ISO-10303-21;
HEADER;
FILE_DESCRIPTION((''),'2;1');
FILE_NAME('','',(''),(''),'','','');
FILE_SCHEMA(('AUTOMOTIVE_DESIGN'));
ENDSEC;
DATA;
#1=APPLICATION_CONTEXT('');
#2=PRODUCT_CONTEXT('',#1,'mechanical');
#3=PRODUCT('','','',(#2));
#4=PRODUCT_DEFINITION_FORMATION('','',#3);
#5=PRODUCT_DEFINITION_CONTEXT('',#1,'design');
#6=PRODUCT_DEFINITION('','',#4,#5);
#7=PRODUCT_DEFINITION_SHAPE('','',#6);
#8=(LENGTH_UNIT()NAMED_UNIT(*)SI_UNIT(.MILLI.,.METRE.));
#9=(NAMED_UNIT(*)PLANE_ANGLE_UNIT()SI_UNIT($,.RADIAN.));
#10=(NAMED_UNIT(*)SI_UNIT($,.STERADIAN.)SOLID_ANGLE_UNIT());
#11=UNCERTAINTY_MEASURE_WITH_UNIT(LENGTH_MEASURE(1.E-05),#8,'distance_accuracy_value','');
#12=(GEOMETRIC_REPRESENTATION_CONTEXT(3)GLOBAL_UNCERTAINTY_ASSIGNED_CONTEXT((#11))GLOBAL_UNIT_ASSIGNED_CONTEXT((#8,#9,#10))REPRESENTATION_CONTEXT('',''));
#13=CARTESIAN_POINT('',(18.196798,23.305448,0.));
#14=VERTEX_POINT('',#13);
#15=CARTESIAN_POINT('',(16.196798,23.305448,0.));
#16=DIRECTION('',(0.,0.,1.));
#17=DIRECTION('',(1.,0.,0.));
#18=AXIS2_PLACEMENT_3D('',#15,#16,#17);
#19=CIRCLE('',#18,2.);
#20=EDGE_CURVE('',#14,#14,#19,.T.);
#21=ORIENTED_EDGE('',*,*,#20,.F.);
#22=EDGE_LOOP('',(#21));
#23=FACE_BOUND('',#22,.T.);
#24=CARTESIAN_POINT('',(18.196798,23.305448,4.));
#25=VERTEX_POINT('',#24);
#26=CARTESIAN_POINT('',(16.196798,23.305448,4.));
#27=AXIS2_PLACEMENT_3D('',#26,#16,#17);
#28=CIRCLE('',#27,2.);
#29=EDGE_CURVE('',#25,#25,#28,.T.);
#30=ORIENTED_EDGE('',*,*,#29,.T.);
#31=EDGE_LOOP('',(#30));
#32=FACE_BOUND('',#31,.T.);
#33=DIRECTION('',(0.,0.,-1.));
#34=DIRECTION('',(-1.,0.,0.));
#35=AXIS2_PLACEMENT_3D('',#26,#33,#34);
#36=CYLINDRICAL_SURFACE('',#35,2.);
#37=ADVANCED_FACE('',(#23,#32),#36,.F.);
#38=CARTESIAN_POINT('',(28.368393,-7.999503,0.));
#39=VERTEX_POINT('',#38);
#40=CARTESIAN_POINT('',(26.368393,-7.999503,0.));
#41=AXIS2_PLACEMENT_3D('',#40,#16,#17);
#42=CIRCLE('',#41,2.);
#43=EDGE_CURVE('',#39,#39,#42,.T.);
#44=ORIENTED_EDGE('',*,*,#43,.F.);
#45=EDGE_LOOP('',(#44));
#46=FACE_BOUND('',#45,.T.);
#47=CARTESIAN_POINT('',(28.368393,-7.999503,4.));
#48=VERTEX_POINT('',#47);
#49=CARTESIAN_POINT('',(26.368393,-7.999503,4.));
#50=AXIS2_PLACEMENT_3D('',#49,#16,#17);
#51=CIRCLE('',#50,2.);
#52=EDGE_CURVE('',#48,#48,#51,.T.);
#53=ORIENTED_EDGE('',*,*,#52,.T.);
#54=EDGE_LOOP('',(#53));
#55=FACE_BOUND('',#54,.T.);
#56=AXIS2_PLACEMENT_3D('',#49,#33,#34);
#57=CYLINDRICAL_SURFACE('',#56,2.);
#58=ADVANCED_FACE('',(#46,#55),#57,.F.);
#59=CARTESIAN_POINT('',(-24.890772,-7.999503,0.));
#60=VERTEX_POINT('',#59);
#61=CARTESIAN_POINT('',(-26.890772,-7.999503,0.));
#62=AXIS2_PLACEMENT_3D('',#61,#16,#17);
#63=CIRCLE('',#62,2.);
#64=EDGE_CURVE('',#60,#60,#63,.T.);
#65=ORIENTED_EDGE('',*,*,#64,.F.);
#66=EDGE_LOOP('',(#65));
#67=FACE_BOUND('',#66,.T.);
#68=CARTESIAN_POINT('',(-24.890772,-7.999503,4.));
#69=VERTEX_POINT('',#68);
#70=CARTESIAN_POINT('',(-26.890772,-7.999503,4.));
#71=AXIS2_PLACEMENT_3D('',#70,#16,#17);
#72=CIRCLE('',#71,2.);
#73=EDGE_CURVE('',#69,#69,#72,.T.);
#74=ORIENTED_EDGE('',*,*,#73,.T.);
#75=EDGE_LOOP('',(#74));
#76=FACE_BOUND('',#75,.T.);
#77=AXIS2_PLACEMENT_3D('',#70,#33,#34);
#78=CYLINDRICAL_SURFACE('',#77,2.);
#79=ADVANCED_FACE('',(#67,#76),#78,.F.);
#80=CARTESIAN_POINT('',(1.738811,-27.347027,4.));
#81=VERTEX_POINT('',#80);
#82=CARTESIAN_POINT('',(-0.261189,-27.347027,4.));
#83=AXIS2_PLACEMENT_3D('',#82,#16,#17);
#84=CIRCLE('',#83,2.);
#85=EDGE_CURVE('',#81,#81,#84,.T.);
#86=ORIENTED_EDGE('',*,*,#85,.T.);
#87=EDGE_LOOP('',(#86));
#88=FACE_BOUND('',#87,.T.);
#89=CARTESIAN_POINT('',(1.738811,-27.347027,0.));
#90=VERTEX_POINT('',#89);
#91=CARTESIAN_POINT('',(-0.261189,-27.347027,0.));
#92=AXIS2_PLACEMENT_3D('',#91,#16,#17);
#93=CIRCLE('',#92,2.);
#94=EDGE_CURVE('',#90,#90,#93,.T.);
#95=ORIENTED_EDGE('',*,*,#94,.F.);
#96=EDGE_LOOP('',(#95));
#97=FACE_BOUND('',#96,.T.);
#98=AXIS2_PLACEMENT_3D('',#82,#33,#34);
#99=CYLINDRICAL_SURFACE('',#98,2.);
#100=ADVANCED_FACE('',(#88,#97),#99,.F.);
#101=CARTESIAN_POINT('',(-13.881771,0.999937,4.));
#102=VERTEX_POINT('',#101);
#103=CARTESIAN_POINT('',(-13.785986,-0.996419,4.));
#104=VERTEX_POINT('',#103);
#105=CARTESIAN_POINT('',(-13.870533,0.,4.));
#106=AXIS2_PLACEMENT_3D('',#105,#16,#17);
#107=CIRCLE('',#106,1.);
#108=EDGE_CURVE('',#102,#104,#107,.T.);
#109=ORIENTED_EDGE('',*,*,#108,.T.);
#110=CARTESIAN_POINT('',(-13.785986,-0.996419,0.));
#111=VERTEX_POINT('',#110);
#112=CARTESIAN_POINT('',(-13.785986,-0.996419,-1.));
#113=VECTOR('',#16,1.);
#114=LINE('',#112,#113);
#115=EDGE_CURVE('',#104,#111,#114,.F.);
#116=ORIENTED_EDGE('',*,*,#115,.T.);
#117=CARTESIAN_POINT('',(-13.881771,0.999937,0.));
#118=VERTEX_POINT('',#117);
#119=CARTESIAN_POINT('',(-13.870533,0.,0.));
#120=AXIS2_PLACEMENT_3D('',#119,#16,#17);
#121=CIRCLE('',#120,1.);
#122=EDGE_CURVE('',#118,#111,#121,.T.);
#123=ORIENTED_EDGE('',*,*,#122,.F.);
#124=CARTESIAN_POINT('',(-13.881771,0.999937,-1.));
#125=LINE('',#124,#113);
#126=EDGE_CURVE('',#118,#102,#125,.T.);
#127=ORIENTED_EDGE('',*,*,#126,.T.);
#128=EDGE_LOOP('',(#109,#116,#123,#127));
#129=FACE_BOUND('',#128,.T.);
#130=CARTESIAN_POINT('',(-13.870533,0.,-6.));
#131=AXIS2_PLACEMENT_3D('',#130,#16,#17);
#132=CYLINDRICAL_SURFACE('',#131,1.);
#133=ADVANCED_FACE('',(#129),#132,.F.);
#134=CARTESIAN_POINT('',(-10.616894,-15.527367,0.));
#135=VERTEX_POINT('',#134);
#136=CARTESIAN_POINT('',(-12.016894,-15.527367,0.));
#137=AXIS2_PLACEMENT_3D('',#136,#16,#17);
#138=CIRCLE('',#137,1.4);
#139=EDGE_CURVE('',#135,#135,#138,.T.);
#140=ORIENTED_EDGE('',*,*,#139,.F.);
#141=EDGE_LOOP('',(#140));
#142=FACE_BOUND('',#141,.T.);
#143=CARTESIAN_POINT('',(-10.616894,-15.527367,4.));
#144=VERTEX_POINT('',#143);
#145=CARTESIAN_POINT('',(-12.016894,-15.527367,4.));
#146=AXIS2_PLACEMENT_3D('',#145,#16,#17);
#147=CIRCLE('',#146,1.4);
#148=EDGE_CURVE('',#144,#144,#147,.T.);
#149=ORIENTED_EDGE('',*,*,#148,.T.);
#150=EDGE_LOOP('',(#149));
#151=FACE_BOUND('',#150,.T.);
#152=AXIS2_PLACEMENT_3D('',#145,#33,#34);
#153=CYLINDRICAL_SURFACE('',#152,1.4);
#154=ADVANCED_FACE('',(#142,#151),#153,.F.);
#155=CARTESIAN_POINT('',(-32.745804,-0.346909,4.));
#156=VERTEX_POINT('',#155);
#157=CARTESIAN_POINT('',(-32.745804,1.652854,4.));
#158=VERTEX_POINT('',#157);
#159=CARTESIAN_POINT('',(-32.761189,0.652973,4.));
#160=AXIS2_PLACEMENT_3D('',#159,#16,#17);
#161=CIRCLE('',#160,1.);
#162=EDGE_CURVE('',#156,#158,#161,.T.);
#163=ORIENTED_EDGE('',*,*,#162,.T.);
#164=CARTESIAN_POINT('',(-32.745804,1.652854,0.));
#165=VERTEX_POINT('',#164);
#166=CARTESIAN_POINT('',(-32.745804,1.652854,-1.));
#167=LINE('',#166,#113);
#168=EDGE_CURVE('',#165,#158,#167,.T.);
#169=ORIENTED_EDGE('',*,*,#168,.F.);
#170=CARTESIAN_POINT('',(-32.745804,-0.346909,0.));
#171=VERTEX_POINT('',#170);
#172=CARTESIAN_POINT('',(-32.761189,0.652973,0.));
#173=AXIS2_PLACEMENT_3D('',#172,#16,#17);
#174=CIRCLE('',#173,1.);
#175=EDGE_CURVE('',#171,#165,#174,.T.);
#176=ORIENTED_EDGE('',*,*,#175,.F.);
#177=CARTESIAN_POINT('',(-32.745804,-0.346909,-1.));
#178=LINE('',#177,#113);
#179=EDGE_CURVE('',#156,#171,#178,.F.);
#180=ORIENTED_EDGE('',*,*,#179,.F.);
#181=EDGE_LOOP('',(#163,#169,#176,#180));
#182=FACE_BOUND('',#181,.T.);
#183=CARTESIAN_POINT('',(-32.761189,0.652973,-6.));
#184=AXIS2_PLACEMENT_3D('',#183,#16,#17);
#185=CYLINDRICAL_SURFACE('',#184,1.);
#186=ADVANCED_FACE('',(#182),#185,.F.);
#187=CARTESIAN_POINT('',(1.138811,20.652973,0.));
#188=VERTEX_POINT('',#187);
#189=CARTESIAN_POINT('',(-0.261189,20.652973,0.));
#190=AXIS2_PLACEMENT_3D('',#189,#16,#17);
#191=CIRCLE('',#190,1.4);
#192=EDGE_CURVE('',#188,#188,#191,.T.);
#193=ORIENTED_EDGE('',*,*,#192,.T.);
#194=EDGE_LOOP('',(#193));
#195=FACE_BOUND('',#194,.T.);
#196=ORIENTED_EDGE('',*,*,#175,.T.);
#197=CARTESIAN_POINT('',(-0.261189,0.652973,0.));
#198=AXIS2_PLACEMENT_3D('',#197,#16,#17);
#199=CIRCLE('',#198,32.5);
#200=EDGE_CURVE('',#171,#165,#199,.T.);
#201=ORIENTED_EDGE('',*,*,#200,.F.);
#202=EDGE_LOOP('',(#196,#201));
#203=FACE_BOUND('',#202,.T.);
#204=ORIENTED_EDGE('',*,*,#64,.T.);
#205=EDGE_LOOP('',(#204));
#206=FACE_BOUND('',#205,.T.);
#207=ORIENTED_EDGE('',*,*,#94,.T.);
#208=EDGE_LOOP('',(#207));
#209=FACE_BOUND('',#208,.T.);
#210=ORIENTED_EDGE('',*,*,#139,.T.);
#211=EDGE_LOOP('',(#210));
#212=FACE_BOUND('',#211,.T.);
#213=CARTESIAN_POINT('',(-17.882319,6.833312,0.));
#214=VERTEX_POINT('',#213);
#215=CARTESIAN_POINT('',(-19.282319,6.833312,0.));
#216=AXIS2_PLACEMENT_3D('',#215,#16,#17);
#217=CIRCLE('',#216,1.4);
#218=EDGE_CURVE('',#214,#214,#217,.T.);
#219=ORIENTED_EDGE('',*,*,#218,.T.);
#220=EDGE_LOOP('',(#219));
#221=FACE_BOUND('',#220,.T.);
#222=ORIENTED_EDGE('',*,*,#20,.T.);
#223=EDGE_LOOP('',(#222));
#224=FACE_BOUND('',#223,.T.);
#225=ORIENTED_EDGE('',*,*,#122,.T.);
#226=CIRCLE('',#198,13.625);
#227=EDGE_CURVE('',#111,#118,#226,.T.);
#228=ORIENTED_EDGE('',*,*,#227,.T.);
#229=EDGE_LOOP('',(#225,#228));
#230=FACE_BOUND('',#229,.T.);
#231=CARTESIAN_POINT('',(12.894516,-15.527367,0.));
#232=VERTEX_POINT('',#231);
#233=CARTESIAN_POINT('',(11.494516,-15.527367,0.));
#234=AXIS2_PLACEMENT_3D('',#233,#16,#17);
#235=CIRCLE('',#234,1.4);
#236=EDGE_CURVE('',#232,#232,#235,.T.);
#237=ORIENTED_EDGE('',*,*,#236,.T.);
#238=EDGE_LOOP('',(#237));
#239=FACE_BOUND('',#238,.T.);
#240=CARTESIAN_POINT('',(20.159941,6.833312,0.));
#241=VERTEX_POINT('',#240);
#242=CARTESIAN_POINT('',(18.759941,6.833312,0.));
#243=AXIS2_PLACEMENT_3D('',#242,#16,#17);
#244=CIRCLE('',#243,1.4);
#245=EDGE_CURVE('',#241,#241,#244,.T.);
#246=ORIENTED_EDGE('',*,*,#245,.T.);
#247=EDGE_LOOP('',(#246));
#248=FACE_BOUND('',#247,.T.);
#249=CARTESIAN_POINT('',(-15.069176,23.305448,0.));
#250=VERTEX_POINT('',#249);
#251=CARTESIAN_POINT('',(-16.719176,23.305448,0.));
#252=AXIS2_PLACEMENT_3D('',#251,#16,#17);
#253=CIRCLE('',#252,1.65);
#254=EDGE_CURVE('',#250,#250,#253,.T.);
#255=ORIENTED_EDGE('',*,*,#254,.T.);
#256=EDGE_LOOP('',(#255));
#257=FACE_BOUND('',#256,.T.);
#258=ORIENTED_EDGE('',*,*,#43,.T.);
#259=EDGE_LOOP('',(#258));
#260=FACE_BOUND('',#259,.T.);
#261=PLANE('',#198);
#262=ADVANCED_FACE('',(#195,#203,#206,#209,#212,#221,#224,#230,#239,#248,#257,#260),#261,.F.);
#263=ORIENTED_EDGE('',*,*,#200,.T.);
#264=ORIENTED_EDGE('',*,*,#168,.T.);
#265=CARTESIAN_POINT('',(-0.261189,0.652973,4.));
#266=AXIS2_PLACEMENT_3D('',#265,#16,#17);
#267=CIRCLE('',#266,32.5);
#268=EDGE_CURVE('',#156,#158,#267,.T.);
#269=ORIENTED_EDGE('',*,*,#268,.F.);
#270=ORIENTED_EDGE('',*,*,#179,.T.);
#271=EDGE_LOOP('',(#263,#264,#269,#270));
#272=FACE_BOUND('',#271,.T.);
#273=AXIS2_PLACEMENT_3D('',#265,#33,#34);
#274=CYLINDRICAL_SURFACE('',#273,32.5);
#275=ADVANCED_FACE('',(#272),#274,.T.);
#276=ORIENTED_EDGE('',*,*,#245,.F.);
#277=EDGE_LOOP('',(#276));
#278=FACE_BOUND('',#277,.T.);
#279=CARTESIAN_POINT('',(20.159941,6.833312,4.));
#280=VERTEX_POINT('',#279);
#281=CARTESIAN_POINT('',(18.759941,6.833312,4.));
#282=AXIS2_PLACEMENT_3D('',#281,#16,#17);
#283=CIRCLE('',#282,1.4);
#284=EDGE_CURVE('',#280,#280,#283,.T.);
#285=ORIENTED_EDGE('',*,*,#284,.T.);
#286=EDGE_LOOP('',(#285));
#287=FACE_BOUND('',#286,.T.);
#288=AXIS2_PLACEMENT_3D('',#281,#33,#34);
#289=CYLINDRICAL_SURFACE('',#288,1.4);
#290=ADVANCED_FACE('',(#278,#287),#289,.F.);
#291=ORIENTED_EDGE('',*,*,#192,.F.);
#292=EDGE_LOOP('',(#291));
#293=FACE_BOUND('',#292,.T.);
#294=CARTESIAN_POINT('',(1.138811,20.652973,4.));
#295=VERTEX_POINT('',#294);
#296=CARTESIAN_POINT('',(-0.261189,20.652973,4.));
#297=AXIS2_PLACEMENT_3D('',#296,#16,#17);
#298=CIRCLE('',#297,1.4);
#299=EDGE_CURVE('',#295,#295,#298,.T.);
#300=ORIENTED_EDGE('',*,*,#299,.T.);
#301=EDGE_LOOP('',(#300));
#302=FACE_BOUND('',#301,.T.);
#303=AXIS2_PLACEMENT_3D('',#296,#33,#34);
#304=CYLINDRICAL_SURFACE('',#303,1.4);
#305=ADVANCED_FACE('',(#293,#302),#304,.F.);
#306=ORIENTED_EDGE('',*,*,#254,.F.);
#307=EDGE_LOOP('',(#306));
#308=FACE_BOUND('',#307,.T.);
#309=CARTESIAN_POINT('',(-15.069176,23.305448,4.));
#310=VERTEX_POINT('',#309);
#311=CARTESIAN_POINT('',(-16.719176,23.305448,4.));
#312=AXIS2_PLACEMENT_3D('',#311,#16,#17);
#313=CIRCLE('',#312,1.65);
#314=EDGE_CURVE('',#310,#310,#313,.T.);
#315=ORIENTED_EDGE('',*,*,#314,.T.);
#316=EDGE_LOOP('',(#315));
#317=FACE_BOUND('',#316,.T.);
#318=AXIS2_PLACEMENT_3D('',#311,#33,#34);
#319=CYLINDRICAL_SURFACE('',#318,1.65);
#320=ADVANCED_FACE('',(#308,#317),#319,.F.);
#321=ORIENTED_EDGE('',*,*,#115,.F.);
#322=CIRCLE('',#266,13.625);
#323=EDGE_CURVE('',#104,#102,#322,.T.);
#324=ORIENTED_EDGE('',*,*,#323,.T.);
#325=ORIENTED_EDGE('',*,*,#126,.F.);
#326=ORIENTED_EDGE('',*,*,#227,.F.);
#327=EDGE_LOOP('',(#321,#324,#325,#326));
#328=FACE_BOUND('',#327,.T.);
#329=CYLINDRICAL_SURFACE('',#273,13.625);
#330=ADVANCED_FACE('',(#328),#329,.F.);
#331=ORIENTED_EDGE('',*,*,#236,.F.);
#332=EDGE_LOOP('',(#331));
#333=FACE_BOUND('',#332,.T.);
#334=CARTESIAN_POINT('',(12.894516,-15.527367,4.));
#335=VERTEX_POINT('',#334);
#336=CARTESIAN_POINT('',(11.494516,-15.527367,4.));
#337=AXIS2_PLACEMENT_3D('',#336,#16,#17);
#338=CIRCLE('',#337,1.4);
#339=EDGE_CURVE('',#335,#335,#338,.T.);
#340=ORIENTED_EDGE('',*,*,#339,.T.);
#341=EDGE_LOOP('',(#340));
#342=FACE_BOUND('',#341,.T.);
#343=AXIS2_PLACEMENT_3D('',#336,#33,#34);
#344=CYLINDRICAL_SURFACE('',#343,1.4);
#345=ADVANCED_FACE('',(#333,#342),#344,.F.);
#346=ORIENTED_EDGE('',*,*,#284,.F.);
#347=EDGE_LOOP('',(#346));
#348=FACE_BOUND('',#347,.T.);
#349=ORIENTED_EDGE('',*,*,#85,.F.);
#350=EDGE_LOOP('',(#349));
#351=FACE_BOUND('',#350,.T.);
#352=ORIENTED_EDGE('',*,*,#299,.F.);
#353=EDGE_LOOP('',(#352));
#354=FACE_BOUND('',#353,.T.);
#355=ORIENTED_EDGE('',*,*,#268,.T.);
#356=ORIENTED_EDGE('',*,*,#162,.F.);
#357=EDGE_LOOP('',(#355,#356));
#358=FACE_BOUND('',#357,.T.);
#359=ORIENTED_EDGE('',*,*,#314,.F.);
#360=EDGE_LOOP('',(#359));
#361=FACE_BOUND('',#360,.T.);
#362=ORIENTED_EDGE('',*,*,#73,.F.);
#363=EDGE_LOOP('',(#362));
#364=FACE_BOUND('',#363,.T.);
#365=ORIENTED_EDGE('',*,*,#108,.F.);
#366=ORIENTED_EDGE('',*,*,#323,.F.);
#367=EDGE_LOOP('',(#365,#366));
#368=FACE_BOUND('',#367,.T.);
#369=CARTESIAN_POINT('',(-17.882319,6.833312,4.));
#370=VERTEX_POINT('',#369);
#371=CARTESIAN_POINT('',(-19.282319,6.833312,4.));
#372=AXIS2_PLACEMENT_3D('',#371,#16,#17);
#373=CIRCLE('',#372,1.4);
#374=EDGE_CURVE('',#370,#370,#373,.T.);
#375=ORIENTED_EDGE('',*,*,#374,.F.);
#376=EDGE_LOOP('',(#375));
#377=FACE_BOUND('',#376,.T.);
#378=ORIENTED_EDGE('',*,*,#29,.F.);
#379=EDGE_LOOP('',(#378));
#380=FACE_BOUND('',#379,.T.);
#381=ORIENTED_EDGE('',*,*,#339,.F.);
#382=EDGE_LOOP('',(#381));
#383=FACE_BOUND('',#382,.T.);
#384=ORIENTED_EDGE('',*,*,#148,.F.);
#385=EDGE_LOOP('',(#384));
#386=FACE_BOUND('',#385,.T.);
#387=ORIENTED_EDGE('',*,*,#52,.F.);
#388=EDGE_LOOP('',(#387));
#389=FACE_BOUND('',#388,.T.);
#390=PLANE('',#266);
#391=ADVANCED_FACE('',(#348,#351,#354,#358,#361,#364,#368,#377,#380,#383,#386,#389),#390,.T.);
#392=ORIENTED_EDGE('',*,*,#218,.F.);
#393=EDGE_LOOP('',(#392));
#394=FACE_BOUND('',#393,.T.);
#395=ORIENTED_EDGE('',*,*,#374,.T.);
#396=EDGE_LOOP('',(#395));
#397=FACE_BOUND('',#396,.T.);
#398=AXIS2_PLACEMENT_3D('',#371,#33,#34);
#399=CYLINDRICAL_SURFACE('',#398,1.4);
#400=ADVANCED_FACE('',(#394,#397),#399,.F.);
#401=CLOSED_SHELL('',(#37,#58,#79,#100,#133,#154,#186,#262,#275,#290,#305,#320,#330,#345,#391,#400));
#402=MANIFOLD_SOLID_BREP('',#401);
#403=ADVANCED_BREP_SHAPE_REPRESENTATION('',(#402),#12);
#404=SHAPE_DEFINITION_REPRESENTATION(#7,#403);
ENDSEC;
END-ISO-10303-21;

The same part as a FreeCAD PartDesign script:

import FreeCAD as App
import Part
import Sketcher
from FreeCAD import Vector
Q = App.Units.Quantity

doc = App.newDocument("Part")
body = doc.addObject("PartDesign::Body", "Body")

# Sketch on XY plane
sketch1 = doc.addObject("Sketcher::SketchObject", "Sketch")
body.addObject(sketch1)
sketch1.AttachmentSupport = (doc.XY_Plane, [""])
sketch1.MapMode = "FlatFace"
sketch1.addGeometry([
    Part.Circle(Vector(-0.3, 0.7, 0), Vector(0, 0, 1), 32.5),  # 0
    Part.Circle(Vector(-0.3, -27.3, 0), Vector(0, 0, 1), 2),  # 1
    Part.Circle(Vector(-26.9, -8, 0), Vector(0, 0, 1), 2),  # 2
    Part.Circle(Vector(-12, -15.5, 0), Vector(0, 0, 1), 1.4),  # 3
    Part.Circle(Vector(11.5, -15.5, 0), Vector(0, 0, 1), 1.4),  # 4
    Part.Circle(Vector(26.4, -8, 0), Vector(0, 0, 1), 2),  # 5
    Part.Circle(Vector(-19.3, 6.8, 0), Vector(0, 0, 1), 1.4),  # 6
    Part.Circle(Vector(-0.3, 0.7, 0), Vector(0, 0, 1), 13.6),  # 7
    Part.Circle(Vector(-16.7, 23.3, 0), Vector(0, 0, 1), 1.6),  # 8
    Part.Circle(Vector(-0.3, 20.7, 0), Vector(0, 0, 1), 1.4),  # 9
    Part.Circle(Vector(18.8, 6.8, 0), Vector(0, 0, 1), 1.4),  # 10
    Part.Circle(Vector(16.2, 23.3, 0), Vector(0, 0, 1), 2),  # 11
], False)
sketch1.addConstraint([
    Sketcher.Constraint("Coincident", 7, 3, 0, 3),
    Sketcher.Constraint("Equal", 1, 2),
    Sketcher.Constraint("Equal", 3, 4),
    Sketcher.Constraint("Equal", 2, 5),
    Sketcher.Constraint("Equal", 4, 6),
    Sketcher.Constraint("Equal", 6, 9),
    Sketcher.Constraint("Equal", 9, 10),
    Sketcher.Constraint("Equal", 5, 11),
    Sketcher.Constraint("Horizontal", 3, 3, 4, 3),
    Sketcher.Constraint("Horizontal", 2, 3, 5, 3),
    Sketcher.Constraint("Horizontal", 6, 3, 10, 3),
    Sketcher.Constraint("Horizontal", 8, 3, 11, 3),
    Sketcher.Constraint("Vertical", 0, 3, 1, 3),
    Sketcher.Constraint("Vertical", 7, 3, 9, 3),
    Sketcher.Constraint("Diameter", 0, Q("65 mm")),
    Sketcher.Constraint("Diameter", 1, Q("4 mm")),
    Sketcher.Constraint("Diameter", 3, Q("2.8 mm")),
    Sketcher.Constraint("Diameter", 8, Q("3.3 mm")),
    Sketcher.Constraint("Diameter", 7, Q("27.25 mm")),
    Sketcher.Constraint("DistanceY", 1, 3, 0, 3, Q("28 mm")),
    Sketcher.Constraint("DistanceY", 0, 3, 9, 3, Q("20 mm")),
    Sketcher.Constraint("DistanceX", -1, 1, 11, 3, Q("16.196798 mm")),
    Sketcher.Constraint("DistanceX", 0, 3, -1, 1, Q("0.261189 mm")),
    Sketcher.Constraint("DistanceX", 2, 3, -1, 1, Q("26.890772 mm")),
    Sketcher.Constraint("DistanceX", 6, 3, -1, 1, Q("19.282319 mm")),
    Sketcher.Constraint("DistanceY", -1, 1, 8, 3, Q("23.305448 mm")),
    Sketcher.Constraint("DistanceX", -1, 1, 10, 3, Q("18.759941 mm")),
    Sketcher.Constraint("DistanceY", 1, 3, 3, 3, Q("11.81966 mm")),
    Sketcher.Constraint("DistanceX", 3, 3, 4, 3, Q("23.51141 mm")),
    Sketcher.Constraint("DistanceY", 0, 3, 6, 3, Q("6.18034 mm")),
    Sketcher.Constraint("DistanceY", 2, 3, 8, 3, Q("31.304952 mm")),
    Sketcher.Constraint("DistanceY", -1, 1, 0, 3, Q("0.652973 mm")),
    Sketcher.Constraint("DistanceX", 3, 3, -1, 1, Q("12.016894 mm")),
    Sketcher.Constraint("DistanceX", -1, 1, 5, 3, Q("26.368393 mm")),
    Sketcher.Constraint("DistanceX", 8, 3, -1, 1, Q("16.719176 mm")),
])
pad1 = doc.addObject("PartDesign::Pad", "Pad")
body.addObject(pad1)
pad1.Profile = sketch1
pad1.Length = 4

# Sketch on XY plane
sketch2 = doc.addObject("Sketcher::SketchObject", "Sketch001")
body.addObject(sketch2)
sketch2.AttachmentSupport = (doc.XY_Plane, [""])
sketch2.MapMode = "FlatFace"
sketch2.AttachmentOffset = App.Placement(Vector(0, 0, 4), App.Rotation())
sketch2.addGeometry([
    Part.Circle(Vector(-13.9, 0, 0), Vector(0, 0, 1), 1),
    Part.Circle(Vector(-32.8, 0.7, 0), Vector(0, 0, 1), 1),
], False)
sketch2.addConstraint([
    Sketcher.Constraint("Equal", 0, 1),
    Sketcher.Constraint("PointOnObject", 0, 3, -1),
    Sketcher.Constraint("Diameter", 0, Q("2 mm")),
    Sketcher.Constraint("DistanceX", 1, 3, -1, 1, Q("32.761189 mm")),
    Sketcher.Constraint("DistanceX", 0, 3, -1, 1, Q("13.870533 mm")),
    Sketcher.Constraint("DistanceY", -1, 1, 1, 3, Q("0.652973 mm")),
])
pocket1 = doc.addObject("PartDesign::Pocket", "Pocket")
body.addObject(pocket1)
pocket1.Profile = sketch2
pocket1.Length = 10

doc.recompute()
